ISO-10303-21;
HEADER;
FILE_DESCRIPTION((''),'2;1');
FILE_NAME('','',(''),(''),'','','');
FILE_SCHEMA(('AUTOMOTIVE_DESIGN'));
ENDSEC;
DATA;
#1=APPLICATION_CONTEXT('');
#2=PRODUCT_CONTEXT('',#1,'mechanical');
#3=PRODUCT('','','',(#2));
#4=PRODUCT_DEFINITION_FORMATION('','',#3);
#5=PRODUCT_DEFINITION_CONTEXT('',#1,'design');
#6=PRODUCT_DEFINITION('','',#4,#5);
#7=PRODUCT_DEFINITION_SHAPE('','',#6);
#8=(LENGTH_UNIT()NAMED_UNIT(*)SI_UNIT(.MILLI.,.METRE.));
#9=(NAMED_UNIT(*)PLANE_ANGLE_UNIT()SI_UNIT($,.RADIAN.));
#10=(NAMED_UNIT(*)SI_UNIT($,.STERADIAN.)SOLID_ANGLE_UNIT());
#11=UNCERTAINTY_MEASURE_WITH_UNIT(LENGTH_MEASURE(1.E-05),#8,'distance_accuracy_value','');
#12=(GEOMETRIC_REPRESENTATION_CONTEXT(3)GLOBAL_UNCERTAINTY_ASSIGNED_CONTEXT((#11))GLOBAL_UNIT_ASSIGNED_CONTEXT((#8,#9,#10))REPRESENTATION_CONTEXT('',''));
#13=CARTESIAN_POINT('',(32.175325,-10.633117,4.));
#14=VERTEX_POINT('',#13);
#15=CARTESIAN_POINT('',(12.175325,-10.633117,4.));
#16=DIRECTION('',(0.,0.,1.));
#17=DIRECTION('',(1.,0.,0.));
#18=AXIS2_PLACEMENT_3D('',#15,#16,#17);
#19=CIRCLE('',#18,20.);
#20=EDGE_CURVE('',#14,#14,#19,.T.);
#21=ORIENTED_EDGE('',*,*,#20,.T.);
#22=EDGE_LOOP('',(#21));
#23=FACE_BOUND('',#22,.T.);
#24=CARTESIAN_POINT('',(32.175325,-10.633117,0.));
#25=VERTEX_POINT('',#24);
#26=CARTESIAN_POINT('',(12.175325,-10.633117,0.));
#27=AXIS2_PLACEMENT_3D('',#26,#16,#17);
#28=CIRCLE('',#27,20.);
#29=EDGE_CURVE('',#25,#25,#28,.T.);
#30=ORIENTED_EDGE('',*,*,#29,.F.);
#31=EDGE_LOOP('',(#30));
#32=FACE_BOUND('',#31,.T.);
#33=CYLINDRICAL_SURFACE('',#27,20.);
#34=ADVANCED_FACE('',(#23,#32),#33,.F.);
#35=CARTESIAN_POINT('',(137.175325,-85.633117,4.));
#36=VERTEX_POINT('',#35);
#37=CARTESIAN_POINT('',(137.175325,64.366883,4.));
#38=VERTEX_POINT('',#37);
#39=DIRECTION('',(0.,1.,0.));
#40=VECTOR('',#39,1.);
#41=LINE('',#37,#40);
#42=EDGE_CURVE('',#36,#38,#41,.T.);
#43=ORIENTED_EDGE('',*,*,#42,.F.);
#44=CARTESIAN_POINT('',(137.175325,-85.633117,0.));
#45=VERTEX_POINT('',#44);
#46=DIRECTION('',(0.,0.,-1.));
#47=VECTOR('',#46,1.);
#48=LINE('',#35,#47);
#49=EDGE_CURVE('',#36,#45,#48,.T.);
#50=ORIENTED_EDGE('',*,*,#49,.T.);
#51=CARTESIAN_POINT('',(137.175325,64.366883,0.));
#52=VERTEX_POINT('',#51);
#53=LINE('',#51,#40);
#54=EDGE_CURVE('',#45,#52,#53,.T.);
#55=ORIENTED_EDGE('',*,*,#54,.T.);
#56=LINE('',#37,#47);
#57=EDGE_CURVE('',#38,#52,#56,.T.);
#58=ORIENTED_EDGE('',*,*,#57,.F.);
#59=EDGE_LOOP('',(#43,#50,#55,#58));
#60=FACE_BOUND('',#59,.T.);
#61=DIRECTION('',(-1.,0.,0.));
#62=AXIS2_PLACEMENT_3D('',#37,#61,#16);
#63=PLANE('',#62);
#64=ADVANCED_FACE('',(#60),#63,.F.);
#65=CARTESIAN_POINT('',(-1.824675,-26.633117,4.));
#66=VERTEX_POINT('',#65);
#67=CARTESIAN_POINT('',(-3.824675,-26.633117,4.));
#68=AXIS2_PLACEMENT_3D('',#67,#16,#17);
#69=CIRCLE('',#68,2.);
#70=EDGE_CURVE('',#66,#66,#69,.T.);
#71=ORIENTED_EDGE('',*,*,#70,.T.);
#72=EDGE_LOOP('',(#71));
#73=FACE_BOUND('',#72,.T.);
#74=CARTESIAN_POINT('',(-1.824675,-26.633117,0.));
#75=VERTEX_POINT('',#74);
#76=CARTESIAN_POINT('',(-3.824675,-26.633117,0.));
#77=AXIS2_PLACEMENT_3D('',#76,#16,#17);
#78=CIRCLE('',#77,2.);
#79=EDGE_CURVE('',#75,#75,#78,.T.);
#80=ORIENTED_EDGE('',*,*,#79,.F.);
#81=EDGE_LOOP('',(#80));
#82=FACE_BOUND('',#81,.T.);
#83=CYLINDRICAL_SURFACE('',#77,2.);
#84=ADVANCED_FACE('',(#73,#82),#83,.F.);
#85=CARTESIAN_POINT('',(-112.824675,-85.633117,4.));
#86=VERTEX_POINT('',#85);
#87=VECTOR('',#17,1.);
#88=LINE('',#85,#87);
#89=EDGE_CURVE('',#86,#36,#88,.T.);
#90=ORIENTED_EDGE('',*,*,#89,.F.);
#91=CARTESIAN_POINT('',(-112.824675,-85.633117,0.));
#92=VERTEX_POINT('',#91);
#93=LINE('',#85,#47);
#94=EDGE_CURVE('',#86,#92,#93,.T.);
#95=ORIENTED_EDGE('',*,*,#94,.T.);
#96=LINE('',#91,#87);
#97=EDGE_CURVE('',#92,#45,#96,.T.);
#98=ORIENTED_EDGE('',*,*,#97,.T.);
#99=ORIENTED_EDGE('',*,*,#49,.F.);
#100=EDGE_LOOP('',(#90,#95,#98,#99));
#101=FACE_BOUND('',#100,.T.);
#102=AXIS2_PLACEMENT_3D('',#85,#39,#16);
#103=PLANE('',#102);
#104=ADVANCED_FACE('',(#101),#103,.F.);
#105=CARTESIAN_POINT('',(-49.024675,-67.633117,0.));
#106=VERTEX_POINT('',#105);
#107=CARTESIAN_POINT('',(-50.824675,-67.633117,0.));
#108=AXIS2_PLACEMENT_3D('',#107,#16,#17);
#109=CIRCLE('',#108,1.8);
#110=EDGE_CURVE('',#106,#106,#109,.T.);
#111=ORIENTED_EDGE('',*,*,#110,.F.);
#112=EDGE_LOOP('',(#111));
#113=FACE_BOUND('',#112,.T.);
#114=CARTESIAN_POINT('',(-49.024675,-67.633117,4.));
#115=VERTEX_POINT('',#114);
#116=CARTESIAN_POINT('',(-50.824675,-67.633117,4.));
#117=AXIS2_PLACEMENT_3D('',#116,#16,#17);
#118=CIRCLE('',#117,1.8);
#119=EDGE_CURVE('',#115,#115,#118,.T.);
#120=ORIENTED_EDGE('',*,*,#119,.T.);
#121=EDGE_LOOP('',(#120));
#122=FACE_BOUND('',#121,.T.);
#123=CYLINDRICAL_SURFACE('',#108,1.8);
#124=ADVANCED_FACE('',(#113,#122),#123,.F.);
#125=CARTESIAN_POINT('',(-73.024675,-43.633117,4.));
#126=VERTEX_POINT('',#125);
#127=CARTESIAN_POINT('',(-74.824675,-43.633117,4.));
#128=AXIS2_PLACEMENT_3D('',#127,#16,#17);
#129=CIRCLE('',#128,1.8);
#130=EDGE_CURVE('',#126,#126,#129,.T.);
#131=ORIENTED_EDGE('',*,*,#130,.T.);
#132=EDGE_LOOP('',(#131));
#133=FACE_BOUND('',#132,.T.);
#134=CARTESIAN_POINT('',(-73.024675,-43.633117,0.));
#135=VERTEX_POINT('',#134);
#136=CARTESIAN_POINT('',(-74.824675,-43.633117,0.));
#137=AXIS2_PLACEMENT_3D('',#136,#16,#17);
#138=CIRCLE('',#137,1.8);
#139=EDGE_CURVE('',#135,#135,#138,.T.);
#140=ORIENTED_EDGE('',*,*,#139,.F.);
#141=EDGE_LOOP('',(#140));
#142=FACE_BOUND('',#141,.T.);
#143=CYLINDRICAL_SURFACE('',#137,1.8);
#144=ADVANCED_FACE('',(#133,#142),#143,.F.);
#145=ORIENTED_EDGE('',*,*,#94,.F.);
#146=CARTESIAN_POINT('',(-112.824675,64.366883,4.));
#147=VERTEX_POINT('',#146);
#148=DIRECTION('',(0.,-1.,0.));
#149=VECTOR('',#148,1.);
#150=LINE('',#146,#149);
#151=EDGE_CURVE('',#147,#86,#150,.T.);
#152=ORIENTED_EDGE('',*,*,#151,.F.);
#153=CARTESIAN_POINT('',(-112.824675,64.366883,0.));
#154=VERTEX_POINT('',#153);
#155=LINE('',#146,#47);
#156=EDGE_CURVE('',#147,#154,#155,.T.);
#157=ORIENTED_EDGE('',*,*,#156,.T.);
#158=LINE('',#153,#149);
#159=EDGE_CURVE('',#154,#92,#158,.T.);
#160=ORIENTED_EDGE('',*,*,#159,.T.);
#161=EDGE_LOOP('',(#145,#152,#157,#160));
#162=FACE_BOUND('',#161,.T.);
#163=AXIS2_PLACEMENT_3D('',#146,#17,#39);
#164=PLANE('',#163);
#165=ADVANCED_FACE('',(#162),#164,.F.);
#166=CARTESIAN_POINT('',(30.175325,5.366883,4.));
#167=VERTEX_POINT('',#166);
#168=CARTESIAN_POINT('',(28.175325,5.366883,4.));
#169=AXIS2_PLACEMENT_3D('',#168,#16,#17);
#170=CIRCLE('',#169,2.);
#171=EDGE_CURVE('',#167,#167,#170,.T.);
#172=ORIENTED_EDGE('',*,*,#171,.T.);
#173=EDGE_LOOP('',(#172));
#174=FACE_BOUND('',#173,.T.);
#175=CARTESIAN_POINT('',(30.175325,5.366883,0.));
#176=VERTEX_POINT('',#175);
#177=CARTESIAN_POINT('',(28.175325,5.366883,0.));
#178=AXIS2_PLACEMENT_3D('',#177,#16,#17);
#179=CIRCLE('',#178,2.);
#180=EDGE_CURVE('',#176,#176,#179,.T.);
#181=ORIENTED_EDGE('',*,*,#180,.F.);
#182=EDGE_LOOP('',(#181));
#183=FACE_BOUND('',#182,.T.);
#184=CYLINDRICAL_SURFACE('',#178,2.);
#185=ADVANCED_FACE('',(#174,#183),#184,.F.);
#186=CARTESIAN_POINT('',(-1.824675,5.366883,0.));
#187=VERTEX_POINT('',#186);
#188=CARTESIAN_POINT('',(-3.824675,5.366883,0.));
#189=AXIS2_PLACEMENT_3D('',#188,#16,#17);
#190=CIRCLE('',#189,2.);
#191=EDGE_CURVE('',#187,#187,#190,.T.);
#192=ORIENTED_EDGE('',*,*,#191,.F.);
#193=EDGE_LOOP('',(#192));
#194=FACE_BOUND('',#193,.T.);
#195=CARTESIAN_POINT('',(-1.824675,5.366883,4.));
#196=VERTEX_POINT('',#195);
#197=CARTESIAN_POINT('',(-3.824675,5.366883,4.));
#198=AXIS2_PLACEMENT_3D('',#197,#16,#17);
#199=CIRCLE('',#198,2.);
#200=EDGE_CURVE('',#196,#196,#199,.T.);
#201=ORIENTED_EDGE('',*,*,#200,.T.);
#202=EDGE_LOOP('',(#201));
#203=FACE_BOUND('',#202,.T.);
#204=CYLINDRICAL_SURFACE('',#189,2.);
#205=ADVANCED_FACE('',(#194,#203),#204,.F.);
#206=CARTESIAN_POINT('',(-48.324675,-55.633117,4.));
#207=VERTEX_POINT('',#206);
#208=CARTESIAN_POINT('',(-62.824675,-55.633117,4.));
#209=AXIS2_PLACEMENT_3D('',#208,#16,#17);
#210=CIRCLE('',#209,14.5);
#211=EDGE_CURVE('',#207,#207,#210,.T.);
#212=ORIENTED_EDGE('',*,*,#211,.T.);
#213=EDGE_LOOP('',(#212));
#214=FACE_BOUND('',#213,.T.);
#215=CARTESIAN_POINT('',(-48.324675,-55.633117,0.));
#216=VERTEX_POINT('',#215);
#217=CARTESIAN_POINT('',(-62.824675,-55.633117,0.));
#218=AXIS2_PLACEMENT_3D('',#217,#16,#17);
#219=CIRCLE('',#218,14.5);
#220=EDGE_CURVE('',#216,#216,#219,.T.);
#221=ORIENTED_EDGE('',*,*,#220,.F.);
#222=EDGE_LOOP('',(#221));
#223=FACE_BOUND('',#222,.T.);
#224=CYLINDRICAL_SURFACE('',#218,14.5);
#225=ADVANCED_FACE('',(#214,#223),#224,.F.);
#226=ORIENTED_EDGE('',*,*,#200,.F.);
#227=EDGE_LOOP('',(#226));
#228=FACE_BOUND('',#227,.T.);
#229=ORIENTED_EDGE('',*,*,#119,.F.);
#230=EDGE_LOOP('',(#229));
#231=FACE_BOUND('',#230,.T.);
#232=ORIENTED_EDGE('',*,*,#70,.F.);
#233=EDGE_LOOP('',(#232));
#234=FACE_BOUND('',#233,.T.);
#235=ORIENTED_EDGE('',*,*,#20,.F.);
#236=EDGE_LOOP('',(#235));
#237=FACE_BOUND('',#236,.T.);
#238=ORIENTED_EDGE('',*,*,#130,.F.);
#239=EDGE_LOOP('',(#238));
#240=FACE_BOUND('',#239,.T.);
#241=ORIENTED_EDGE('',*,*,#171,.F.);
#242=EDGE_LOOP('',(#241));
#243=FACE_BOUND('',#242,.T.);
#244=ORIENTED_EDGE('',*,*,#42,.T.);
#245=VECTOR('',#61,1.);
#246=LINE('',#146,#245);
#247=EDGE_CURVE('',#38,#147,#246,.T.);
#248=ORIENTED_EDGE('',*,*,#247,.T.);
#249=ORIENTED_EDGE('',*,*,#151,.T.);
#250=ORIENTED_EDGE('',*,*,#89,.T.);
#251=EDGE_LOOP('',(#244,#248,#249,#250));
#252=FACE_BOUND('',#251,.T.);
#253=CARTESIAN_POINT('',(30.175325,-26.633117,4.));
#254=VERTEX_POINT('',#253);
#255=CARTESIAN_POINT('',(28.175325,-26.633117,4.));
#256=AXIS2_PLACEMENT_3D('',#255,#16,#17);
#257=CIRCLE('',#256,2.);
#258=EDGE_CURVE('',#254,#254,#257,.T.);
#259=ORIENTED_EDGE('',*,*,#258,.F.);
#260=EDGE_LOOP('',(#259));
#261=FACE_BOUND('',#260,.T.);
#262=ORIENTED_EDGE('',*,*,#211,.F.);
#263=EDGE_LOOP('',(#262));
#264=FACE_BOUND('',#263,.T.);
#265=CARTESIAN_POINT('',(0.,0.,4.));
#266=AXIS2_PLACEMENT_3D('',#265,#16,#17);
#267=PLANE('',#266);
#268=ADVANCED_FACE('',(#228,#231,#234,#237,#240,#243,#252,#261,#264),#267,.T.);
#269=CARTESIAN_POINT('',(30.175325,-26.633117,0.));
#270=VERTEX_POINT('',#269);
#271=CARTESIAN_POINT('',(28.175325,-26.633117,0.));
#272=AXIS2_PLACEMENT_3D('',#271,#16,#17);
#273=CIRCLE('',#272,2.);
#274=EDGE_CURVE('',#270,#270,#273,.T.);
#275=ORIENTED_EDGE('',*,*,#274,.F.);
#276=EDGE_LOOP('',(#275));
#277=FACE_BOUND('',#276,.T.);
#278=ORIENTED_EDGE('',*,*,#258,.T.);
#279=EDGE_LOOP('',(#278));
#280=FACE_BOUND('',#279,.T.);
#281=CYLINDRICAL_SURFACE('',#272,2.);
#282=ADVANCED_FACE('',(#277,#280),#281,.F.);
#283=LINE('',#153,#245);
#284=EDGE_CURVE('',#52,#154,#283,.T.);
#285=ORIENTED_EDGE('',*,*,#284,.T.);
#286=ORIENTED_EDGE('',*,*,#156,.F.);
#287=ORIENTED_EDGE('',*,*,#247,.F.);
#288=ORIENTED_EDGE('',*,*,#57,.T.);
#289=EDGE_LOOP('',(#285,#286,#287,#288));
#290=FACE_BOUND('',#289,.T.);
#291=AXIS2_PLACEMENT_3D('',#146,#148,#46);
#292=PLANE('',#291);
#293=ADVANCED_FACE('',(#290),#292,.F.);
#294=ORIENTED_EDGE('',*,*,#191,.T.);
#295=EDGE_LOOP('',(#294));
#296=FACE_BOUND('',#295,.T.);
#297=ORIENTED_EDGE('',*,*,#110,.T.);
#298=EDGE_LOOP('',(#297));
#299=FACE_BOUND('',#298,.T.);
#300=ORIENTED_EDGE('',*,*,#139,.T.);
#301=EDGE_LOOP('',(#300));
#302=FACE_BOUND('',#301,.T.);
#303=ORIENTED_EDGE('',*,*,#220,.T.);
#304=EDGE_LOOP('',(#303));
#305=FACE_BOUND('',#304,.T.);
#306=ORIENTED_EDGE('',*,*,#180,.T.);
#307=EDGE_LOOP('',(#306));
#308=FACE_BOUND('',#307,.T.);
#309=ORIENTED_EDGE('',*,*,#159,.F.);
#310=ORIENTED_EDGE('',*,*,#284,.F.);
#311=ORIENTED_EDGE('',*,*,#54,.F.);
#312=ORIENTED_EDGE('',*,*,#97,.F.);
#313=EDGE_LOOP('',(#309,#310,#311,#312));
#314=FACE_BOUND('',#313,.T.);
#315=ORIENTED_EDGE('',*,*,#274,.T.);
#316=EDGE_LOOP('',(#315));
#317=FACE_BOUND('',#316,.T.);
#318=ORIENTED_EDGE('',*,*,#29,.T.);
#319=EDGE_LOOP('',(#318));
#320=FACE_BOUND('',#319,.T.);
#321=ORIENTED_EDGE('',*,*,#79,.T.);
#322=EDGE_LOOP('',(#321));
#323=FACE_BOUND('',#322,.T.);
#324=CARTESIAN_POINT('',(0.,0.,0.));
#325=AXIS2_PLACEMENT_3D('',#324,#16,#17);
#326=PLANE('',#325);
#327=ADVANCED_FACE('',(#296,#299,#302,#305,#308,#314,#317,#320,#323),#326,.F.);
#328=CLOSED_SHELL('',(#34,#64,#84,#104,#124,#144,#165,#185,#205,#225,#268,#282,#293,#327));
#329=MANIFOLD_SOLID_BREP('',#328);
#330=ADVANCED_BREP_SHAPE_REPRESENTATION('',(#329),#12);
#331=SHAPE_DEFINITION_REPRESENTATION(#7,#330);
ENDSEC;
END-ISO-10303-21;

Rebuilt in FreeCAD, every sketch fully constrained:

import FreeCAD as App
import Part
import Sketcher


def add_polygon(sketch, points):
    """Adds a closed chain of lines whose ends are joined by coincident constraints."""
    first, n = sketch.GeometryCount, len(points)
    for a, b in zip(points, points[1:] + points[:1]):
        sketch.addGeometry(Part.LineSegment(App.Vector(*a, 0), App.Vector(*b, 0)), False)
    for i in range(n):
        sketch.addConstraint(Sketcher.Constraint("Coincident", first + i, 2, first + (i + 1) % n, 1))

doc = App.newDocument("Part")
body = doc.addObject("PartDesign::Body", "Body")

# Sketch on XY plane
sketch1 = doc.addObject("Sketcher::SketchObject", "Sketch")
body.addObject(sketch1)
sketch1.AttachmentSupport = (doc.XY_Plane, [""])
sketch1.MapMode = "FlatFace"
add_polygon(sketch1, [(-113, 64), (-113, -86), (137, -86), (137, 64)])  # lines 0-3
sketch1.addConstraint([
    Sketcher.Constraint("Vertical", 0),
    Sketcher.Constraint("Horizontal", 1),
    Sketcher.Constraint("Vertical", 2),
    Sketcher.Constraint("Horizontal", 3),
    Sketcher.Constraint("DistanceX", 1, 1, 1, 2, 250.0),
    Sketcher.Constraint("DistanceY", 0, 2, 0, 1, 150.0),
    Sketcher.Constraint("DistanceX", 0, 2, -1, 1, 112.824675),
    Sketcher.Constraint("DistanceY", 0, 2, -1, 1, 85.633117),
])
pad1 = doc.addObject("PartDesign::Pad", "Pad")
body.addObject(pad1)
pad1.Profile = sketch1
pad1.Length = 4

# Sketch on XY plane
sketch2 = doc.addObject("Sketcher::SketchObject", "Sketch001")
body.addObject(sketch2)
sketch2.AttachmentSupport = (doc.XY_Plane, [""])
sketch2.MapMode = "FlatFace"
sketch2.AttachmentOffset = App.Placement(App.Vector(0, 0, 4), App.Rotation())
sketch2.addGeometry(Part.Circle(App.Vector(12, -11, 0), App.Vector(0, 0, 1), 20), False)
sketch2.addConstraint([
    Sketcher.Constraint("Diameter", 0, 40.0),
    Sketcher.Constraint("DistanceX", -1, 1, 0, 3, 12.175325),
    Sketcher.Constraint("DistanceY", 0, 3, -1, 1, 10.633117),
])
pocket1 = doc.addObject("PartDesign::Pocket", "Pocket")
body.addObject(pocket1)
pocket1.Profile = sketch2
pocket1.Length = 4

# Sketch on XY plane
sketch3 = doc.addObject("Sketcher::SketchObject", "Sketch002")
body.addObject(sketch3)
sketch3.AttachmentSupport = (doc.XY_Plane, [""])
sketch3.MapMode = "FlatFace"
sketch3.AttachmentOffset = App.Placement(App.Vector(0, 0, 4), App.Rotation())
sketch3.addGeometry([
    Part.Circle(App.Vector(-3.8, 5.4, 0), App.Vector(0, 0, 1), 2),
    Part.Circle(App.Vector(28.2, 5.4, 0), App.Vector(0, 0, 1), 2),
    Part.Circle(App.Vector(28.2, -26.6, 0), App.Vector(0, 0, 1), 2),
    Part.Circle(App.Vector(-3.8, -26.6, 0), App.Vector(0, 0, 1), 2),
], False)
sketch3.addConstraint([
    Sketcher.Constraint("Equal", 0, 1),
    Sketcher.Constraint("Equal", 1, 2),
    Sketcher.Constraint("Equal", 2, 3),
    Sketcher.Constraint("Horizontal", 0, 3, 1, 3),
    Sketcher.Constraint("Horizontal", 2, 3, 3, 3),
    Sketcher.Constraint("Vertical", 1, 3, 2, 3),
    Sketcher.Constraint("Vertical", 0, 3, 3, 3),
    Sketcher.Constraint("Diameter", 0, 4.0),
    Sketcher.Constraint("DistanceX", 0, 3, 1, 3, 32.0),
    Sketcher.Constraint("DistanceY", 2, 3, 1, 3, 32.0),
    Sketcher.Constraint("DistanceX", 0, 3, -1, 1, 3.824675),
    Sketcher.Constraint("DistanceY", -1, 1, 0, 3, 5.366883),
])
pocket2 = doc.addObject("PartDesign::Pocket", "Pocket001")
body.addObject(pocket2)
pocket2.Profile = sketch3
pocket2.Length = 4

# Sketch on XY plane
sketch4 = doc.addObject("Sketcher::SketchObject", "Sketch003")
body.addObject(sketch4)
sketch4.AttachmentSupport = (doc.XY_Plane, [""])
sketch4.MapMode = "FlatFace"
sketch4.AttachmentOffset = App.Placement(App.Vector(0, 0, 4), App.Rotation())
sketch4.addGeometry([
    Part.Circle(App.Vector(-62.8, -55.6, 0), App.Vector(0, 0, 1), 14.5),
    Part.Circle(App.Vector(-74.8, -43.6, 0), App.Vector(0, 0, 1), 1.8),
    Part.Circle(App.Vector(-50.8, -67.6, 0), App.Vector(0, 0, 1), 1.8),
], False)
sketch4.addConstraint([
    Sketcher.Constraint("Equal", 1, 2),
    Sketcher.Constraint("Diameter", 0, 29.0),
    Sketcher.Constraint("Diameter", 1, 3.6),
    Sketcher.Constraint("DistanceX", 1, 3, 0, 3, 12.0),
    Sketcher.Constraint("DistanceY", 0, 3, 1, 3, 12.0),
    Sketcher.Constraint("DistanceX", 0, 3, 2, 3, 12.0),
    Sketcher.Constraint("DistanceY", 2, 3, 0, 3, 12.0),
    Sketcher.Constraint("DistanceX", 0, 3, -1, 1, 62.824675),
    Sketcher.Constraint("DistanceY", 0, 3, -1, 1, 55.633117),
])
pocket3 = doc.addObject("PartDesign::Pocket", "Pocket002")
body.addObject(pocket3)
pocket3.Profile = sketch4
pocket3.Length = 4

doc.recompute()
